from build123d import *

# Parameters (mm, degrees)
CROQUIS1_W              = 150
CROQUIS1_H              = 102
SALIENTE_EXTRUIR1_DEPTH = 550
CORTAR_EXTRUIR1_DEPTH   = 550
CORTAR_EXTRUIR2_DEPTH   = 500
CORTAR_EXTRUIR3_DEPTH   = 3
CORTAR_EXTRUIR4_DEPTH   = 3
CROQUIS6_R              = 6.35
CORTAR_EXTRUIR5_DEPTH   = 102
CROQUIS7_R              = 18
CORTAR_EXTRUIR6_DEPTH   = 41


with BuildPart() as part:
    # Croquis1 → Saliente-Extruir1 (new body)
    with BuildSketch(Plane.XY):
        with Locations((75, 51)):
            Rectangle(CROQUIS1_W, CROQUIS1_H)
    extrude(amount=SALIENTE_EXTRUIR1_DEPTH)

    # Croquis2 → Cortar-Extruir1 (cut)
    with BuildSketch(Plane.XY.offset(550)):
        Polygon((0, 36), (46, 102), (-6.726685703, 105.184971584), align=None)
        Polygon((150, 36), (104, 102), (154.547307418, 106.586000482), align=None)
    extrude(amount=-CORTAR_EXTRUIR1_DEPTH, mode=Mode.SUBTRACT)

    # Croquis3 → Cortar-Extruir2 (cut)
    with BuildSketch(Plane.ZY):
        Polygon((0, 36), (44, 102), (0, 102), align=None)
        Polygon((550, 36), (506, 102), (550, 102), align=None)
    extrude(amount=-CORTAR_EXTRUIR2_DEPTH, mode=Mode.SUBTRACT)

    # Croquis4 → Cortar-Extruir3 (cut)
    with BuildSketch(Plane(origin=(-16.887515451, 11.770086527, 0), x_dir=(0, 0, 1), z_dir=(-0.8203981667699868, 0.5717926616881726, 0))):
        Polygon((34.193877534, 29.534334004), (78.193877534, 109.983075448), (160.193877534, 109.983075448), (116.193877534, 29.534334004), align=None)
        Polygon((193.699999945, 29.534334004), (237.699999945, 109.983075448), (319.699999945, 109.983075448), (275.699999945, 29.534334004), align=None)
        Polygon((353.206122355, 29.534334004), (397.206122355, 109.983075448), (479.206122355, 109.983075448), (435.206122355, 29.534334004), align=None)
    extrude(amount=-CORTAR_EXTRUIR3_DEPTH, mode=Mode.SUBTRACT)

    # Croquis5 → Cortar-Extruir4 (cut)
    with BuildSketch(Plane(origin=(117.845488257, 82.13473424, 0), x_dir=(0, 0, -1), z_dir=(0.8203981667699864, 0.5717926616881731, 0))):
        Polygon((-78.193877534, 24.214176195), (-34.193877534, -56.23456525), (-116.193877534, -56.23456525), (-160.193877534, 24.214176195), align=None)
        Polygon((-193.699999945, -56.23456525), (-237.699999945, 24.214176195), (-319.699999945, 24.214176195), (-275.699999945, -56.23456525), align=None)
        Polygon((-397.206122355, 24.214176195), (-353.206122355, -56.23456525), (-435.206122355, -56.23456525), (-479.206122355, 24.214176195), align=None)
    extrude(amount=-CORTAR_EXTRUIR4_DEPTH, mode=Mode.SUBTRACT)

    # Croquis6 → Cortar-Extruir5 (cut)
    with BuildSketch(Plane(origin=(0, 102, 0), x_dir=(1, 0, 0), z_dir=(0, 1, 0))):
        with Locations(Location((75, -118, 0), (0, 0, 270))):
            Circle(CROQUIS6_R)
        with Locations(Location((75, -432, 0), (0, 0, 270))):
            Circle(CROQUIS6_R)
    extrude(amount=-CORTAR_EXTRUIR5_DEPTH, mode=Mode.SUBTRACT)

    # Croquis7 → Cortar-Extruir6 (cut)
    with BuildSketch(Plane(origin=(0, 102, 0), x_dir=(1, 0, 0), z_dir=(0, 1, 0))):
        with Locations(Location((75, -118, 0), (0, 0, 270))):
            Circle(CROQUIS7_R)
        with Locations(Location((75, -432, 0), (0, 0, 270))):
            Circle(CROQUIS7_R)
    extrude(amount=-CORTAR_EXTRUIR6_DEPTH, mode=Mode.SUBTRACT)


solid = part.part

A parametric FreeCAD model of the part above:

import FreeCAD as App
import Part
import Sketcher

V = App.Vector


def add_polygon(sketch, points):
    """Adds a closed chain of lines whose ends are joined by coincident constraints."""
    first, n = sketch.GeometryCount, len(points)
    for a, b in zip(points, points[1:] + points[:1]):
        sketch.addGeometry(Part.LineSegment(App.Vector(*a, 0), App.Vector(*b, 0)), False)
    for i in range(n):
        sketch.addConstraint(Sketcher.Constraint("Coincident", first + i, 2, first + (i + 1) % n, 1))

doc = App.newDocument("Part")
body = doc.addObject("PartDesign::Body", "Body")

# Sketch on XY plane
sketch1 = body.newObject("Sketcher::SketchObject", "Sketch")
sketch1.AttachmentSupport = (doc.getObject("XY_Plane"), [""])
sketch1.MapMode = "FlatFace"
add_polygon(sketch1, [(0, 102), (0, 0), (150, 0), (150, 102)])  # lines 0-3
sketch1.addConstraint([
    Sketcher.Constraint("Vertical", 0),
    Sketcher.Constraint("Horizontal", 1),
    Sketcher.Constraint("Vertical", 2),
    Sketcher.Constraint("Horizontal", 3),
    Sketcher.Constraint("Coincident", 0, 2, -1, 1),
    Sketcher.Constraint("DistanceX", 1, 1, 1, 2, 150.0),
    Sketcher.Constraint("DistanceY", 0, 2, 0, 1, 102.0),
])
pad1 = body.newObject("PartDesign::Pad", "Pad")
pad1.Profile = sketch1
pad1.Length = 550

# Sketch on XY plane
sketch2 = body.newObject("Sketcher::SketchObject", "Sketch001")
sketch2.AttachmentSupport = (doc.getObject("XY_Plane"), [""])
sketch2.MapMode = "FlatFace"
sketch2.AttachmentOffset = App.Placement(V(0, 0, 550), App.Rotation())
add_polygon(sketch2, [(0, 36), (46, 102), (-6.726686, 105.184972)])  # lines 0-2
add_polygon(sketch2, [(104, 102), (150, 36), (154.547307, 106.586)])  # lines 3-5
sketch2.addConstraint([
    Sketcher.Constraint("PointOnObject", 2, 2, -2),
    Sketcher.Constraint("Horizontal", 2, 2, 3, 2),
    Sketcher.Constraint("Horizontal", 0, 2, 5, 2),
    Sketcher.Constraint("Equal", 0, 3),
    Sketcher.Constraint("DistanceX", -1, 1, 0, 2, 46.0),
    Sketcher.Constraint("DistanceY", -1, 1, 0, 2, 102.0),
    Sketcher.Constraint("DistanceY", -1, 1, 2, 2, 36.0),
    Sketcher.Constraint("DistanceX", -1, 1, 3, 2, 150.0),
    Sketcher.Constraint("DistanceY", -1, 1, 4, 2, 106.586),
    Sketcher.Constraint("Distance", 2, 69.511212),
    Sketcher.Constraint("DistanceY", -1, 1, 1, 2, 105.184972),
    Sketcher.Constraint("Distance", 4, 70.732323),
])
pocket1 = body.newObject("PartDesign::Pocket", "Pocket")
pocket1.Profile = sketch2
pocket1.Length = 550

# Sketch on YZ plane
sketch3 = body.newObject("Sketcher::SketchObject", "Sketch002")
sketch3.AttachmentSupport = (doc.getObject("YZ_Plane"), [""])
sketch3.MapMode = "FlatFace"
add_polygon(sketch3, [(36, 0), (102, 44), (102, 0)])  # lines 0-2
add_polygon(sketch3, [(102, 506), (36, 550), (102, 550)])  # lines 3-5
sketch3.addConstraint([
    Sketcher.Constraint("Vertical", 1),
    Sketcher.Constraint("Horizontal", 2),
    Sketcher.Constraint("Horizontal", 4),
    Sketcher.Constraint("Vertical", 5),
    Sketcher.Constraint("PointOnObject", 1, 2, -1),
    Sketcher.Constraint("Vertical", 2, 2, 3, 2),
    Sketcher.Constraint("Vertical", 1, 2, 4, 2),
    Sketcher.Constraint("Equal", 1, 5),
    Sketcher.Constraint("DistanceX", 2, 2, 2, 1, 66.0),
    Sketcher.Constraint("DistanceY", 1, 2, 1, 1, 44.0),
    Sketcher.Constraint("DistanceX", -1, 1, 0, 2, 102.0),
    Sketcher.Constraint("DistanceY", -1, 1, 3, 2, 550.0),
])
pocket2 = body.newObject("PartDesign::Pocket", "Pocket001")
pocket2.Profile = sketch3
pocket2.Length = 500
pocket2.Reversed = True

# Sketch on an angled plane
sketch4 = body.newObject("Sketcher::SketchObject", "Sketch003")
sketch4.Placement = App.Placement(V(-16.887515, 11.770087, 0), App.Rotation(V(0, 0, 1), V(0.571792662, 0.820398167, 0), V(-0.820398167, 0.571792662, 0), "ZXY"))
add_polygon(sketch4, [(78.193878, 109.983076), (34.193878, 29.534334), (116.193878, 29.534334), (160.193878, 109.983076)])  # lines 0-3
add_polygon(sketch4, [(237.7, 109.983076), (193.7, 29.534334), (275.7, 29.534334), (319.7, 109.983076)])  # lines 4-7
add_polygon(sketch4, [(397.206122, 109.983076), (353.206122, 29.534334), (435.206122, 29.534334), (479.206122, 109.983076)])  # lines 8-11
sketch4.addConstraint([
    Sketcher.Constraint("Horizontal", 1),
    Sketcher.Constraint("Horizontal", 3),
    Sketcher.Constraint("Horizontal", 5),
    Sketcher.Constraint("Horizontal", 7),
    Sketcher.Constraint("Horizontal", 9),
    Sketcher.Constraint("Horizontal", 11),
    Sketcher.Constraint("Parallel", 0, 2),
    Sketcher.Constraint("Parallel", 2, 4),
    Sketcher.Constraint("Parallel", 4, 6),
    Sketcher.Constraint("Parallel", 6, 8),
    Sketcher.Constraint("Parallel", 8, 10),
    Sketcher.Constraint("Horizontal", 1, 2, 4, 2),
    Sketcher.Constraint("Horizontal", 3, 2, 6, 2),
    Sketcher.Constraint("Horizontal", 5, 2, 8, 2),
    Sketcher.Constraint("Horizontal", 7, 2, 10, 2),
    Sketcher.Constraint("Equal", 3, 5),
    Sketcher.Constraint("Equal", 7, 9),
    Sketcher.Constraint("DistanceX", 1, 1, 1, 2, 82.0),
    Sketcher.Constraint("DistanceX", 1, 2, 2, 2, 44.0),
    Sketcher.Constraint("DistanceX", -1, 1, 4, 2, 193.7),
    Sketcher.Constraint("DistanceY", 1, 2, 2, 2, 80.448742),
    Sketcher.Constraint("DistanceX", -1, 1, 0, 2, 34.193878),
    Sketcher.Constraint("DistanceY", -1, 1, 0, 2, 29.534334),
    Sketcher.Constraint("DistanceX", -1, 1, 8, 2, 353.206122),
])
pocket3 = body.newObject("PartDesign::Pocket", "Pocket002")
pocket3.Profile = sketch4
pocket3.Length = 3

# Sketch on an angled plane
sketch5 = body.newObject("Sketcher::SketchObject", "Sketch004")
sketch5.Placement = App.Placement(V(117.845488, 82.134734, 0), App.Rotation(V(0, 0, -1), V(-0.571792662, 0.820398167, 0), V(0.820398167, 0.571792662, 0), "ZXY"))
add_polygon(sketch5, [(-34.193878, -56.234565), (-78.193878, 24.214176), (-160.193878, 24.214176), (-116.193878, -56.234565)])  # lines 0-3
add_polygon(sketch5, [(-193.7, -56.234565), (-237.7, 24.214176), (-319.7, 24.214176), (-275.7, -56.234565)])  # lines 4-7
add_polygon(sketch5, [(-353.206122, -56.234565), (-397.206122, 24.214176), (-479.206122, 24.214176), (-435.206122, -56.234565)])  # lines 8-11
sketch5.addConstraint([
    Sketcher.Constraint("Horizontal", 1),
    Sketcher.Constraint("Horizontal", 3),
    Sketcher.Constraint("Horizontal", 5),
    Sketcher.Constraint("Horizontal", 7),
    Sketcher.Constraint("Horizontal", 9),
    Sketcher.Constraint("Horizontal", 11),
    Sketcher.Constraint("Parallel", 0, 2),
    Sketcher.Constraint("Parallel", 2, 4),
    Sketcher.Constraint("Parallel", 4, 6),
    Sketcher.Constraint("Parallel", 6, 8),
    Sketcher.Constraint("Parallel", 8, 10),
    Sketcher.Constraint("Horizontal", 1, 2, 4, 2),
    Sketcher.Constraint("Horizontal", 3, 2, 6, 2),
    Sketcher.Constraint("Horizontal", 5, 2, 8, 2),
    Sketcher.Constraint("Horizontal", 7, 2, 10, 2),
    Sketcher.Constraint("Equal", 3, 5),
    Sketcher.Constraint("Equal", 7, 9),
    Sketcher.Constraint("DistanceX", 1, 2, 1, 1, 82.0),
    Sketcher.Constraint("DistanceX", 2, 2, 0, 2, 38.0),
    Sketcher.Constraint("DistanceX", 4, 2, -1, 1, 237.7),
    Sketcher.Constraint("DistanceY", 2, 2, 0, 2, 80.448742),
    Sketcher.Constraint("DistanceX", 0, 2, -1, 1, 78.193878),
    Sketcher.Constraint("DistanceY", -1, 1, 0, 2, 24.214176),
    Sketcher.Constraint("DistanceX", 8, 2, -1, 1, 397.206122),
])
pocket4 = body.newObject("PartDesign::Pocket", "Pocket003")
pocket4.Profile = sketch5
pocket4.Length = 3

# Sketch on XZ plane
sketch6 = body.newObject("Sketcher::SketchObject", "Sketch005")
sketch6.AttachmentSupport = (doc.getObject("XZ_Plane"), [""])
sketch6.MapMode = "FlatFace"
sketch6.AttachmentOffset = App.Placement(V(0, 0, -102), App.Rotation())
sketch6.addGeometry([
    Part.Circle(V(75, 118, 0), V(0, 0, 1), 6.35),
    Part.Circle(V(75, 432, 0), V(0, 0, 1), 6.35),
], False)
sketch6.addConstraint([
    Sketcher.Constraint("Equal", 0, 1),
    Sketcher.Constraint("Vertical", 0, 3, 1, 3),
    Sketcher.Constraint("Diameter", 0, 12.7),
    Sketcher.Constraint("DistanceX", -1, 1, 0, 3, 75.0),
    Sketcher.Constraint("DistanceY", -1, 1, 0, 3, 118.0),
    Sketcher.Constraint("DistanceY", -1, 1, 1, 3, 432.0),
])
pocket5 = body.newObject("PartDesign::Pocket", "Pocket004")
pocket5.Profile = sketch6
pocket5.Length = 102
pocket5.Reversed = True

# Sketch on XZ plane
sketch7 = body.newObject("Sketcher::SketchObject", "Sketch006")
sketch7.AttachmentSupport = (doc.getObject("XZ_Plane"), [""])
sketch7.MapMode = "FlatFace"
sketch7.AttachmentOffset = App.Placement(V(0, 0, -102), App.Rotation())
sketch7.addGeometry([
    Part.Circle(V(75, 118, 0), V(0, 0, 1), 18),
    Part.Circle(V(75, 432, 0), V(0, 0, 1), 18),
], False)
sketch7.addConstraint([
    Sketcher.Constraint("Equal", 0, 1),
    Sketcher.Constraint("Vertical", 0, 3, 1, 3),
    Sketcher.Constraint("Diameter", 0, 36.0),
    Sketcher.Constraint("DistanceX", -1, 1, 0, 3, 75.0),
    Sketcher.Constraint("DistanceY", -1, 1, 0, 3, 118.0),
    Sketcher.Constraint("DistanceY", -1, 1, 1, 3, 432.0),
])
pocket6 = body.newObject("PartDesign::Pocket", "Pocket005")
pocket6.Profile = sketch7
pocket6.Length = 41
pocket6.Reversed = True

doc.recompute()
